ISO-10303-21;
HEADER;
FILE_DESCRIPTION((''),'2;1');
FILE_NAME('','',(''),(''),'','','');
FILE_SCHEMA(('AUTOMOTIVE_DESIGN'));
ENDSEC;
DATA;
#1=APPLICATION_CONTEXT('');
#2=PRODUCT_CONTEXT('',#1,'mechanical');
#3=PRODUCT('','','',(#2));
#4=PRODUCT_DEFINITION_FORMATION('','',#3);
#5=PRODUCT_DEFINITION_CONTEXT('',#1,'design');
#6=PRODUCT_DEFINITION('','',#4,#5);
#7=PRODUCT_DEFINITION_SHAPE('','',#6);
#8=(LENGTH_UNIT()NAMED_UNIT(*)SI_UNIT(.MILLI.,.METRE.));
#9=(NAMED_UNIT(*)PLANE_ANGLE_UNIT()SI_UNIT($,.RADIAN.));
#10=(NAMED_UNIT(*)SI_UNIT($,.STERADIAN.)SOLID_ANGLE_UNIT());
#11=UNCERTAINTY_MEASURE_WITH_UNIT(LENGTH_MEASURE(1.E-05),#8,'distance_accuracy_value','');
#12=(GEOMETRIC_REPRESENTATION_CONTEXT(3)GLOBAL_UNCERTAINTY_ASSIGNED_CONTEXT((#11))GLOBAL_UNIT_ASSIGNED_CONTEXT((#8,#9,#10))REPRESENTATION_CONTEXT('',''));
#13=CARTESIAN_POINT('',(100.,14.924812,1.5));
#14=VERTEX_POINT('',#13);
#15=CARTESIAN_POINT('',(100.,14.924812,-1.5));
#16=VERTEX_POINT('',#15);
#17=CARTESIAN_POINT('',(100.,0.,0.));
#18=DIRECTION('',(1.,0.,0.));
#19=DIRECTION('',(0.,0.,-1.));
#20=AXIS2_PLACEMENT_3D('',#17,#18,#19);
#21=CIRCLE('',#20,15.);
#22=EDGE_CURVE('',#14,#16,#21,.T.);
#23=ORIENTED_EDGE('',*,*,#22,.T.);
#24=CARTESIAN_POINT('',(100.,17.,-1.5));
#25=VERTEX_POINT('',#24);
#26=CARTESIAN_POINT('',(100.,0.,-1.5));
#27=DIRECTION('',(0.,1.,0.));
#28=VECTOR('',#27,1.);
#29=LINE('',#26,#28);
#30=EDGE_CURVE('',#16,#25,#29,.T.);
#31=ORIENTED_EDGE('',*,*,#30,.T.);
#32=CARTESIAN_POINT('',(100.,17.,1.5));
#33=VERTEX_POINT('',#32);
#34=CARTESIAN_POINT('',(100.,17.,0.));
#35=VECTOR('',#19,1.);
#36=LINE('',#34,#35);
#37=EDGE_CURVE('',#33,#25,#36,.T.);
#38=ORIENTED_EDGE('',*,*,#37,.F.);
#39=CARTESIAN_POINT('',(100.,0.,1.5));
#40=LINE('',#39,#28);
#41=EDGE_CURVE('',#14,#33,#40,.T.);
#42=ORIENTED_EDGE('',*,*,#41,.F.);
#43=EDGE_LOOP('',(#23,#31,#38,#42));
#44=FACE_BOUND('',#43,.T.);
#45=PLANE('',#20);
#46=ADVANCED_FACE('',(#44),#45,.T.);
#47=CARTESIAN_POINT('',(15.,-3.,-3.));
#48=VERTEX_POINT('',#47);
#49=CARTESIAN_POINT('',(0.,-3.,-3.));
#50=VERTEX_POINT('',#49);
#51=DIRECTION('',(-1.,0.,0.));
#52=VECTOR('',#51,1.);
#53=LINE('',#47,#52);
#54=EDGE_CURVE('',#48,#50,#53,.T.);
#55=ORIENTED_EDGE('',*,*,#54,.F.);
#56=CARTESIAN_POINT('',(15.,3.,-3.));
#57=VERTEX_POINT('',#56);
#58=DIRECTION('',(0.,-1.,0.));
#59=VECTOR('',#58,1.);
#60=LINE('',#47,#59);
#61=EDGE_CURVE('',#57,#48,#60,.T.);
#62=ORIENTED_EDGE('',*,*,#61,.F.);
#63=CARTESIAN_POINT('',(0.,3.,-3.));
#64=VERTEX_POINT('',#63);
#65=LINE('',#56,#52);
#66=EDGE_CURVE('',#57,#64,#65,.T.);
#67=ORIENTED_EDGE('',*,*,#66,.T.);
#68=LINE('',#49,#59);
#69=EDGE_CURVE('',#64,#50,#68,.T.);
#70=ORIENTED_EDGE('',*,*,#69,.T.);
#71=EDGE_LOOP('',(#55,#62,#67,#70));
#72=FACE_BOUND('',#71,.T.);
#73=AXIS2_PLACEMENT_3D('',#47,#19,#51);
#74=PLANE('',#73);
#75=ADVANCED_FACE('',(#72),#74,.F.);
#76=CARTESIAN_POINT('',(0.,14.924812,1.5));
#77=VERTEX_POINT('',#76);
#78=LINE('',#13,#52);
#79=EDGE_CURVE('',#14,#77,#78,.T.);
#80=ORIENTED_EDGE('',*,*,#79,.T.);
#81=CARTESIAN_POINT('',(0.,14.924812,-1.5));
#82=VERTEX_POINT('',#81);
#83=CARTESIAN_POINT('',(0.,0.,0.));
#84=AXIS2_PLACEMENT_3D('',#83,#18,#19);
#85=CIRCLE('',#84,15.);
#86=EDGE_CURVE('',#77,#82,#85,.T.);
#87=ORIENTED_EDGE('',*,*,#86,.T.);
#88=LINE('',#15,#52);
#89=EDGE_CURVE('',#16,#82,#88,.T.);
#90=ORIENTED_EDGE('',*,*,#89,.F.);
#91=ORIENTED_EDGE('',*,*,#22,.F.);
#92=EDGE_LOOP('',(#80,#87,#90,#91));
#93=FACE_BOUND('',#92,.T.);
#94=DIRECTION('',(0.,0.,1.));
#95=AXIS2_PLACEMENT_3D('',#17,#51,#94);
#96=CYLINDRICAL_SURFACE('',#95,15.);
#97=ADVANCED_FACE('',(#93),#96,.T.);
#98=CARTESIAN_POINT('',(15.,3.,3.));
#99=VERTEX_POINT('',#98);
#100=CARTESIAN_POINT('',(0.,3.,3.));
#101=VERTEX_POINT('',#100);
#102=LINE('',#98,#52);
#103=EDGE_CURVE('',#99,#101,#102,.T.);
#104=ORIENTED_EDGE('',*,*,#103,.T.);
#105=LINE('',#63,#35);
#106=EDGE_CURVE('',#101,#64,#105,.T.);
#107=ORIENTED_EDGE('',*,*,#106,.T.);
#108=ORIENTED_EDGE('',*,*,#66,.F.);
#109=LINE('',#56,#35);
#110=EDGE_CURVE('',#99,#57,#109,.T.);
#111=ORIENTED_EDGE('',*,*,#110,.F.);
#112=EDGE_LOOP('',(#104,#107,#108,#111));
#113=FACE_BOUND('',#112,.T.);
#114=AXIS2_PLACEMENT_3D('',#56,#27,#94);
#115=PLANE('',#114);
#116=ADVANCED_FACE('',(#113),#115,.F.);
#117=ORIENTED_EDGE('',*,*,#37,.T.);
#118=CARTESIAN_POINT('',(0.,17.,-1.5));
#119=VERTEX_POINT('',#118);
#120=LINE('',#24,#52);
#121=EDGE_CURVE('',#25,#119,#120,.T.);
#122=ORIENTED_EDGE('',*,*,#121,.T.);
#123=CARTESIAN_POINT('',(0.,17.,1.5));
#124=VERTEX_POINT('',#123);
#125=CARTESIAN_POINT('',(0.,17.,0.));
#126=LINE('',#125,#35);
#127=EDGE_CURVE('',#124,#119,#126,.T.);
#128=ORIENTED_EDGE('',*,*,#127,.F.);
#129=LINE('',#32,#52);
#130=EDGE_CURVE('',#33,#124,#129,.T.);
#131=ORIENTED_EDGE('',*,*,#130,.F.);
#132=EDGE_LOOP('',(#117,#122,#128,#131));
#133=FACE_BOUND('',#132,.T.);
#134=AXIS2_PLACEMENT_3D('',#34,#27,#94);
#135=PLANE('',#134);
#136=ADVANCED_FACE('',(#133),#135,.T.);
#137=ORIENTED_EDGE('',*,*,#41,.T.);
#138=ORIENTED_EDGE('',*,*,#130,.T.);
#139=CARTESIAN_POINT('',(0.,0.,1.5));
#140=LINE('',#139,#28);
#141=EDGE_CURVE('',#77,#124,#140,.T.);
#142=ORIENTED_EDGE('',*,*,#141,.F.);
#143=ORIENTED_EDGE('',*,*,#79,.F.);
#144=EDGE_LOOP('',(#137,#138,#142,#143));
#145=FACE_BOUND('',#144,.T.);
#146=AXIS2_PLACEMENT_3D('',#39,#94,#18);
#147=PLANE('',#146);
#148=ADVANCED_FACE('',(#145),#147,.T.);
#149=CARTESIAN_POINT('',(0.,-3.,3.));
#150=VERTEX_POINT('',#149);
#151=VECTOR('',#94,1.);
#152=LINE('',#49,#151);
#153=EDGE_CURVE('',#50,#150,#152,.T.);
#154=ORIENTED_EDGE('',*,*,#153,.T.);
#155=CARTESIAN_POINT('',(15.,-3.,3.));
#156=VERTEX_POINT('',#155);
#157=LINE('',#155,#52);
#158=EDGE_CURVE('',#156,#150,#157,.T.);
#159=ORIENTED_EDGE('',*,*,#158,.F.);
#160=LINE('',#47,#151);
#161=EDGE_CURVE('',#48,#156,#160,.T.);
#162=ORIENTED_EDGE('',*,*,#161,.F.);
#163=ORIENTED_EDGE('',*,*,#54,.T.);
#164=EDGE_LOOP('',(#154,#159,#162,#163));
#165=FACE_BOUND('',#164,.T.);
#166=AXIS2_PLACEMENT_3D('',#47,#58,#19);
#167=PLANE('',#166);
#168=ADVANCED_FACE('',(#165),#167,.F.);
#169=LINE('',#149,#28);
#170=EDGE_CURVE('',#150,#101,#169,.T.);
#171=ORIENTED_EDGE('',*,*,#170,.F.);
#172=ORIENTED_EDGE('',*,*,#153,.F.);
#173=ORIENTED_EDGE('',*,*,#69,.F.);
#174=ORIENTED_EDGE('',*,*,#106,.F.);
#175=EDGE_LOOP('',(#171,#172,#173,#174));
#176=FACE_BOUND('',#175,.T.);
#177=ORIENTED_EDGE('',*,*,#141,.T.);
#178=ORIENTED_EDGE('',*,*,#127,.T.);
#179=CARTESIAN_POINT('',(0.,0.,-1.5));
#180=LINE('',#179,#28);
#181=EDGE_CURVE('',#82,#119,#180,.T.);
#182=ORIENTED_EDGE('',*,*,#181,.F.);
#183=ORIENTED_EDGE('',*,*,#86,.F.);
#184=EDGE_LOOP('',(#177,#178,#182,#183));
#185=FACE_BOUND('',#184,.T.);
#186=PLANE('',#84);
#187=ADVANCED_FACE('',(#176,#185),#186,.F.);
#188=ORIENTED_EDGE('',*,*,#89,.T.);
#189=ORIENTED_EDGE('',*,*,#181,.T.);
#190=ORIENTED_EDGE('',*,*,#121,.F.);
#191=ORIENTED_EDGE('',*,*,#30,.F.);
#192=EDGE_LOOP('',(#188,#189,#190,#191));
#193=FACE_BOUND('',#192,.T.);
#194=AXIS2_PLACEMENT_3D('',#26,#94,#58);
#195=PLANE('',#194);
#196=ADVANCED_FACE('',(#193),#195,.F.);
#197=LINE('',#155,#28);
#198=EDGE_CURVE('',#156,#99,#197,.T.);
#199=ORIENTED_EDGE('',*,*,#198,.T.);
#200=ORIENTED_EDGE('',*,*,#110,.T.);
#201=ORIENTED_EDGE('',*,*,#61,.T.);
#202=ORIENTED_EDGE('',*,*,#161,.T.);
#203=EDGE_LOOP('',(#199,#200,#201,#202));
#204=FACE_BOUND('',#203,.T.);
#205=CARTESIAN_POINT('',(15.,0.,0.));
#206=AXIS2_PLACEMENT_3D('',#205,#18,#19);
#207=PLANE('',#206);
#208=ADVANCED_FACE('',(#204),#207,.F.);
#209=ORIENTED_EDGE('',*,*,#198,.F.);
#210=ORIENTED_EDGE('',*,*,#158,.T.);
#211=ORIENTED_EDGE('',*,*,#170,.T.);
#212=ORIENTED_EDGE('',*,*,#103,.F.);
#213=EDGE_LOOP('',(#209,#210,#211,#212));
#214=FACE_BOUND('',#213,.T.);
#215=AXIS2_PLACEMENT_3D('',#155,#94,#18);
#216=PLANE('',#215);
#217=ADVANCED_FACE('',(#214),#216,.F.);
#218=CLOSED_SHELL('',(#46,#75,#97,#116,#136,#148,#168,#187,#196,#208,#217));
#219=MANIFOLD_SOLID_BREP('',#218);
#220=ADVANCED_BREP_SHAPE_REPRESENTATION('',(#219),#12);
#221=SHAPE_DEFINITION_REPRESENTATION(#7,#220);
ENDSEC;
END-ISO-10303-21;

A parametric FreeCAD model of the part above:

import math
import FreeCAD as App
import Part
import Sketcher
from FreeCAD import Vector
Q = App.Units.Quantity


def add_polygon(sketch, points):
    """Adds a closed chain of lines whose ends are joined by coincident constraints."""
    first, n = sketch.GeometryCount, len(points)
    for a, b in zip(points, points[1:] + points[:1]):
        sketch.addGeometry(Part.LineSegment(App.Vector(*a, 0), App.Vector(*b, 0)), False)
    for i in range(n):
        sketch.addConstraint(Sketcher.Constraint("Coincident", first + i, 2, first + (i + 1) % n, 1))

doc = App.newDocument("Part")
body = doc.addObject("PartDesign::Body", "Body")

sketch1 = body.newObject("Sketcher::SketchObject", "Sketch")
sketch1.AttachmentSupport = (doc.getObject("YZ_Plane"), [""])
sketch1.MapMode = "FlatFace"
sketch1.addGeometry([
    Part.ArcOfCircle(Part.Circle(Vector(0, 0, 0), Vector(0, 0, 1), 15), math.radians(6), math.radians(270)),
    Part.ArcOfCircle(Part.Circle(Vector(0, 0, 0), Vector(0, 0, 1), 15), math.radians(-90), math.radians(-6)),
    Part.LineSegment(Vector(14.9, -1.5, 0), Vector(17, -1.5, 0)),
    Part.LineSegment(Vector(17, -1.5, 0), Vector(17, 1.5, 0)),
    Part.LineSegment(Vector(17, 1.5, 0), Vector(14.9, 1.5, 0)),
], False)
sketch1.addConstraint([
    Sketcher.Constraint("Tangent", 0, 2, 1, 1),
    Sketcher.Constraint("Coincident", 1, 2, 2, 1),
    Sketcher.Constraint("Coincident", 2, 2, 3, 1),
    Sketcher.Constraint("Coincident", 3, 2, 4, 1),
    Sketcher.Constraint("Coincident", 4, 2, 0, 1),
    Sketcher.Constraint("Horizontal", 2),
    Sketcher.Constraint("Vertical", 3),
    Sketcher.Constraint("Horizontal", 4),
    Sketcher.Constraint("Coincident", 0, 3, -1, 1),
    Sketcher.Constraint("Equal", 0, 1),
    Sketcher.Constraint("PointOnObject", 0, 2, -2),
    Sketcher.Constraint("Vertical", 1, 2, 4, 2),
    Sketcher.Constraint("Radius", 0, Q("15 mm")),
    Sketcher.Constraint("DistanceY", 3, 1, 3, 2, Q("3 mm")),
    Sketcher.Constraint("DistanceX", -1, 1, 2, 2, Q("17 mm")),
])
pad1 = body.newObject("PartDesign::Pad", "Pad")
pad1.Profile = sketch1
pad1.Length = 100

sketch2 = body.newObject("Sketcher::SketchObject", "Sketch001")
sketch2.AttachmentSupport = (doc.getObject("YZ_Plane"), [""])
sketch2.MapMode = "FlatFace"
add_polygon(sketch2, [(3, -3), (-3, -3), (-3, 3), (3, 3)])
sketch2.addConstraint([
    Sketcher.Constraint("Horizontal", 0),
    Sketcher.Constraint("Vertical", 1),
    Sketcher.Constraint("Horizontal", 2),
    Sketcher.Constraint("Vertical", 3),
    Sketcher.Constraint("Symmetric", 0, 2, 2, 2, -1, 1),
    Sketcher.Constraint("Equal", 2, 1),
    Sketcher.Constraint("DistanceX", 0, 2, 0, 1, Q("6 mm")),
])
pocket1 = body.newObject("PartDesign::Pocket", "Pocket")
pocket1.Profile = sketch2
pocket1.Length = 15
pocket1.Reversed = True

doc.recompute()
